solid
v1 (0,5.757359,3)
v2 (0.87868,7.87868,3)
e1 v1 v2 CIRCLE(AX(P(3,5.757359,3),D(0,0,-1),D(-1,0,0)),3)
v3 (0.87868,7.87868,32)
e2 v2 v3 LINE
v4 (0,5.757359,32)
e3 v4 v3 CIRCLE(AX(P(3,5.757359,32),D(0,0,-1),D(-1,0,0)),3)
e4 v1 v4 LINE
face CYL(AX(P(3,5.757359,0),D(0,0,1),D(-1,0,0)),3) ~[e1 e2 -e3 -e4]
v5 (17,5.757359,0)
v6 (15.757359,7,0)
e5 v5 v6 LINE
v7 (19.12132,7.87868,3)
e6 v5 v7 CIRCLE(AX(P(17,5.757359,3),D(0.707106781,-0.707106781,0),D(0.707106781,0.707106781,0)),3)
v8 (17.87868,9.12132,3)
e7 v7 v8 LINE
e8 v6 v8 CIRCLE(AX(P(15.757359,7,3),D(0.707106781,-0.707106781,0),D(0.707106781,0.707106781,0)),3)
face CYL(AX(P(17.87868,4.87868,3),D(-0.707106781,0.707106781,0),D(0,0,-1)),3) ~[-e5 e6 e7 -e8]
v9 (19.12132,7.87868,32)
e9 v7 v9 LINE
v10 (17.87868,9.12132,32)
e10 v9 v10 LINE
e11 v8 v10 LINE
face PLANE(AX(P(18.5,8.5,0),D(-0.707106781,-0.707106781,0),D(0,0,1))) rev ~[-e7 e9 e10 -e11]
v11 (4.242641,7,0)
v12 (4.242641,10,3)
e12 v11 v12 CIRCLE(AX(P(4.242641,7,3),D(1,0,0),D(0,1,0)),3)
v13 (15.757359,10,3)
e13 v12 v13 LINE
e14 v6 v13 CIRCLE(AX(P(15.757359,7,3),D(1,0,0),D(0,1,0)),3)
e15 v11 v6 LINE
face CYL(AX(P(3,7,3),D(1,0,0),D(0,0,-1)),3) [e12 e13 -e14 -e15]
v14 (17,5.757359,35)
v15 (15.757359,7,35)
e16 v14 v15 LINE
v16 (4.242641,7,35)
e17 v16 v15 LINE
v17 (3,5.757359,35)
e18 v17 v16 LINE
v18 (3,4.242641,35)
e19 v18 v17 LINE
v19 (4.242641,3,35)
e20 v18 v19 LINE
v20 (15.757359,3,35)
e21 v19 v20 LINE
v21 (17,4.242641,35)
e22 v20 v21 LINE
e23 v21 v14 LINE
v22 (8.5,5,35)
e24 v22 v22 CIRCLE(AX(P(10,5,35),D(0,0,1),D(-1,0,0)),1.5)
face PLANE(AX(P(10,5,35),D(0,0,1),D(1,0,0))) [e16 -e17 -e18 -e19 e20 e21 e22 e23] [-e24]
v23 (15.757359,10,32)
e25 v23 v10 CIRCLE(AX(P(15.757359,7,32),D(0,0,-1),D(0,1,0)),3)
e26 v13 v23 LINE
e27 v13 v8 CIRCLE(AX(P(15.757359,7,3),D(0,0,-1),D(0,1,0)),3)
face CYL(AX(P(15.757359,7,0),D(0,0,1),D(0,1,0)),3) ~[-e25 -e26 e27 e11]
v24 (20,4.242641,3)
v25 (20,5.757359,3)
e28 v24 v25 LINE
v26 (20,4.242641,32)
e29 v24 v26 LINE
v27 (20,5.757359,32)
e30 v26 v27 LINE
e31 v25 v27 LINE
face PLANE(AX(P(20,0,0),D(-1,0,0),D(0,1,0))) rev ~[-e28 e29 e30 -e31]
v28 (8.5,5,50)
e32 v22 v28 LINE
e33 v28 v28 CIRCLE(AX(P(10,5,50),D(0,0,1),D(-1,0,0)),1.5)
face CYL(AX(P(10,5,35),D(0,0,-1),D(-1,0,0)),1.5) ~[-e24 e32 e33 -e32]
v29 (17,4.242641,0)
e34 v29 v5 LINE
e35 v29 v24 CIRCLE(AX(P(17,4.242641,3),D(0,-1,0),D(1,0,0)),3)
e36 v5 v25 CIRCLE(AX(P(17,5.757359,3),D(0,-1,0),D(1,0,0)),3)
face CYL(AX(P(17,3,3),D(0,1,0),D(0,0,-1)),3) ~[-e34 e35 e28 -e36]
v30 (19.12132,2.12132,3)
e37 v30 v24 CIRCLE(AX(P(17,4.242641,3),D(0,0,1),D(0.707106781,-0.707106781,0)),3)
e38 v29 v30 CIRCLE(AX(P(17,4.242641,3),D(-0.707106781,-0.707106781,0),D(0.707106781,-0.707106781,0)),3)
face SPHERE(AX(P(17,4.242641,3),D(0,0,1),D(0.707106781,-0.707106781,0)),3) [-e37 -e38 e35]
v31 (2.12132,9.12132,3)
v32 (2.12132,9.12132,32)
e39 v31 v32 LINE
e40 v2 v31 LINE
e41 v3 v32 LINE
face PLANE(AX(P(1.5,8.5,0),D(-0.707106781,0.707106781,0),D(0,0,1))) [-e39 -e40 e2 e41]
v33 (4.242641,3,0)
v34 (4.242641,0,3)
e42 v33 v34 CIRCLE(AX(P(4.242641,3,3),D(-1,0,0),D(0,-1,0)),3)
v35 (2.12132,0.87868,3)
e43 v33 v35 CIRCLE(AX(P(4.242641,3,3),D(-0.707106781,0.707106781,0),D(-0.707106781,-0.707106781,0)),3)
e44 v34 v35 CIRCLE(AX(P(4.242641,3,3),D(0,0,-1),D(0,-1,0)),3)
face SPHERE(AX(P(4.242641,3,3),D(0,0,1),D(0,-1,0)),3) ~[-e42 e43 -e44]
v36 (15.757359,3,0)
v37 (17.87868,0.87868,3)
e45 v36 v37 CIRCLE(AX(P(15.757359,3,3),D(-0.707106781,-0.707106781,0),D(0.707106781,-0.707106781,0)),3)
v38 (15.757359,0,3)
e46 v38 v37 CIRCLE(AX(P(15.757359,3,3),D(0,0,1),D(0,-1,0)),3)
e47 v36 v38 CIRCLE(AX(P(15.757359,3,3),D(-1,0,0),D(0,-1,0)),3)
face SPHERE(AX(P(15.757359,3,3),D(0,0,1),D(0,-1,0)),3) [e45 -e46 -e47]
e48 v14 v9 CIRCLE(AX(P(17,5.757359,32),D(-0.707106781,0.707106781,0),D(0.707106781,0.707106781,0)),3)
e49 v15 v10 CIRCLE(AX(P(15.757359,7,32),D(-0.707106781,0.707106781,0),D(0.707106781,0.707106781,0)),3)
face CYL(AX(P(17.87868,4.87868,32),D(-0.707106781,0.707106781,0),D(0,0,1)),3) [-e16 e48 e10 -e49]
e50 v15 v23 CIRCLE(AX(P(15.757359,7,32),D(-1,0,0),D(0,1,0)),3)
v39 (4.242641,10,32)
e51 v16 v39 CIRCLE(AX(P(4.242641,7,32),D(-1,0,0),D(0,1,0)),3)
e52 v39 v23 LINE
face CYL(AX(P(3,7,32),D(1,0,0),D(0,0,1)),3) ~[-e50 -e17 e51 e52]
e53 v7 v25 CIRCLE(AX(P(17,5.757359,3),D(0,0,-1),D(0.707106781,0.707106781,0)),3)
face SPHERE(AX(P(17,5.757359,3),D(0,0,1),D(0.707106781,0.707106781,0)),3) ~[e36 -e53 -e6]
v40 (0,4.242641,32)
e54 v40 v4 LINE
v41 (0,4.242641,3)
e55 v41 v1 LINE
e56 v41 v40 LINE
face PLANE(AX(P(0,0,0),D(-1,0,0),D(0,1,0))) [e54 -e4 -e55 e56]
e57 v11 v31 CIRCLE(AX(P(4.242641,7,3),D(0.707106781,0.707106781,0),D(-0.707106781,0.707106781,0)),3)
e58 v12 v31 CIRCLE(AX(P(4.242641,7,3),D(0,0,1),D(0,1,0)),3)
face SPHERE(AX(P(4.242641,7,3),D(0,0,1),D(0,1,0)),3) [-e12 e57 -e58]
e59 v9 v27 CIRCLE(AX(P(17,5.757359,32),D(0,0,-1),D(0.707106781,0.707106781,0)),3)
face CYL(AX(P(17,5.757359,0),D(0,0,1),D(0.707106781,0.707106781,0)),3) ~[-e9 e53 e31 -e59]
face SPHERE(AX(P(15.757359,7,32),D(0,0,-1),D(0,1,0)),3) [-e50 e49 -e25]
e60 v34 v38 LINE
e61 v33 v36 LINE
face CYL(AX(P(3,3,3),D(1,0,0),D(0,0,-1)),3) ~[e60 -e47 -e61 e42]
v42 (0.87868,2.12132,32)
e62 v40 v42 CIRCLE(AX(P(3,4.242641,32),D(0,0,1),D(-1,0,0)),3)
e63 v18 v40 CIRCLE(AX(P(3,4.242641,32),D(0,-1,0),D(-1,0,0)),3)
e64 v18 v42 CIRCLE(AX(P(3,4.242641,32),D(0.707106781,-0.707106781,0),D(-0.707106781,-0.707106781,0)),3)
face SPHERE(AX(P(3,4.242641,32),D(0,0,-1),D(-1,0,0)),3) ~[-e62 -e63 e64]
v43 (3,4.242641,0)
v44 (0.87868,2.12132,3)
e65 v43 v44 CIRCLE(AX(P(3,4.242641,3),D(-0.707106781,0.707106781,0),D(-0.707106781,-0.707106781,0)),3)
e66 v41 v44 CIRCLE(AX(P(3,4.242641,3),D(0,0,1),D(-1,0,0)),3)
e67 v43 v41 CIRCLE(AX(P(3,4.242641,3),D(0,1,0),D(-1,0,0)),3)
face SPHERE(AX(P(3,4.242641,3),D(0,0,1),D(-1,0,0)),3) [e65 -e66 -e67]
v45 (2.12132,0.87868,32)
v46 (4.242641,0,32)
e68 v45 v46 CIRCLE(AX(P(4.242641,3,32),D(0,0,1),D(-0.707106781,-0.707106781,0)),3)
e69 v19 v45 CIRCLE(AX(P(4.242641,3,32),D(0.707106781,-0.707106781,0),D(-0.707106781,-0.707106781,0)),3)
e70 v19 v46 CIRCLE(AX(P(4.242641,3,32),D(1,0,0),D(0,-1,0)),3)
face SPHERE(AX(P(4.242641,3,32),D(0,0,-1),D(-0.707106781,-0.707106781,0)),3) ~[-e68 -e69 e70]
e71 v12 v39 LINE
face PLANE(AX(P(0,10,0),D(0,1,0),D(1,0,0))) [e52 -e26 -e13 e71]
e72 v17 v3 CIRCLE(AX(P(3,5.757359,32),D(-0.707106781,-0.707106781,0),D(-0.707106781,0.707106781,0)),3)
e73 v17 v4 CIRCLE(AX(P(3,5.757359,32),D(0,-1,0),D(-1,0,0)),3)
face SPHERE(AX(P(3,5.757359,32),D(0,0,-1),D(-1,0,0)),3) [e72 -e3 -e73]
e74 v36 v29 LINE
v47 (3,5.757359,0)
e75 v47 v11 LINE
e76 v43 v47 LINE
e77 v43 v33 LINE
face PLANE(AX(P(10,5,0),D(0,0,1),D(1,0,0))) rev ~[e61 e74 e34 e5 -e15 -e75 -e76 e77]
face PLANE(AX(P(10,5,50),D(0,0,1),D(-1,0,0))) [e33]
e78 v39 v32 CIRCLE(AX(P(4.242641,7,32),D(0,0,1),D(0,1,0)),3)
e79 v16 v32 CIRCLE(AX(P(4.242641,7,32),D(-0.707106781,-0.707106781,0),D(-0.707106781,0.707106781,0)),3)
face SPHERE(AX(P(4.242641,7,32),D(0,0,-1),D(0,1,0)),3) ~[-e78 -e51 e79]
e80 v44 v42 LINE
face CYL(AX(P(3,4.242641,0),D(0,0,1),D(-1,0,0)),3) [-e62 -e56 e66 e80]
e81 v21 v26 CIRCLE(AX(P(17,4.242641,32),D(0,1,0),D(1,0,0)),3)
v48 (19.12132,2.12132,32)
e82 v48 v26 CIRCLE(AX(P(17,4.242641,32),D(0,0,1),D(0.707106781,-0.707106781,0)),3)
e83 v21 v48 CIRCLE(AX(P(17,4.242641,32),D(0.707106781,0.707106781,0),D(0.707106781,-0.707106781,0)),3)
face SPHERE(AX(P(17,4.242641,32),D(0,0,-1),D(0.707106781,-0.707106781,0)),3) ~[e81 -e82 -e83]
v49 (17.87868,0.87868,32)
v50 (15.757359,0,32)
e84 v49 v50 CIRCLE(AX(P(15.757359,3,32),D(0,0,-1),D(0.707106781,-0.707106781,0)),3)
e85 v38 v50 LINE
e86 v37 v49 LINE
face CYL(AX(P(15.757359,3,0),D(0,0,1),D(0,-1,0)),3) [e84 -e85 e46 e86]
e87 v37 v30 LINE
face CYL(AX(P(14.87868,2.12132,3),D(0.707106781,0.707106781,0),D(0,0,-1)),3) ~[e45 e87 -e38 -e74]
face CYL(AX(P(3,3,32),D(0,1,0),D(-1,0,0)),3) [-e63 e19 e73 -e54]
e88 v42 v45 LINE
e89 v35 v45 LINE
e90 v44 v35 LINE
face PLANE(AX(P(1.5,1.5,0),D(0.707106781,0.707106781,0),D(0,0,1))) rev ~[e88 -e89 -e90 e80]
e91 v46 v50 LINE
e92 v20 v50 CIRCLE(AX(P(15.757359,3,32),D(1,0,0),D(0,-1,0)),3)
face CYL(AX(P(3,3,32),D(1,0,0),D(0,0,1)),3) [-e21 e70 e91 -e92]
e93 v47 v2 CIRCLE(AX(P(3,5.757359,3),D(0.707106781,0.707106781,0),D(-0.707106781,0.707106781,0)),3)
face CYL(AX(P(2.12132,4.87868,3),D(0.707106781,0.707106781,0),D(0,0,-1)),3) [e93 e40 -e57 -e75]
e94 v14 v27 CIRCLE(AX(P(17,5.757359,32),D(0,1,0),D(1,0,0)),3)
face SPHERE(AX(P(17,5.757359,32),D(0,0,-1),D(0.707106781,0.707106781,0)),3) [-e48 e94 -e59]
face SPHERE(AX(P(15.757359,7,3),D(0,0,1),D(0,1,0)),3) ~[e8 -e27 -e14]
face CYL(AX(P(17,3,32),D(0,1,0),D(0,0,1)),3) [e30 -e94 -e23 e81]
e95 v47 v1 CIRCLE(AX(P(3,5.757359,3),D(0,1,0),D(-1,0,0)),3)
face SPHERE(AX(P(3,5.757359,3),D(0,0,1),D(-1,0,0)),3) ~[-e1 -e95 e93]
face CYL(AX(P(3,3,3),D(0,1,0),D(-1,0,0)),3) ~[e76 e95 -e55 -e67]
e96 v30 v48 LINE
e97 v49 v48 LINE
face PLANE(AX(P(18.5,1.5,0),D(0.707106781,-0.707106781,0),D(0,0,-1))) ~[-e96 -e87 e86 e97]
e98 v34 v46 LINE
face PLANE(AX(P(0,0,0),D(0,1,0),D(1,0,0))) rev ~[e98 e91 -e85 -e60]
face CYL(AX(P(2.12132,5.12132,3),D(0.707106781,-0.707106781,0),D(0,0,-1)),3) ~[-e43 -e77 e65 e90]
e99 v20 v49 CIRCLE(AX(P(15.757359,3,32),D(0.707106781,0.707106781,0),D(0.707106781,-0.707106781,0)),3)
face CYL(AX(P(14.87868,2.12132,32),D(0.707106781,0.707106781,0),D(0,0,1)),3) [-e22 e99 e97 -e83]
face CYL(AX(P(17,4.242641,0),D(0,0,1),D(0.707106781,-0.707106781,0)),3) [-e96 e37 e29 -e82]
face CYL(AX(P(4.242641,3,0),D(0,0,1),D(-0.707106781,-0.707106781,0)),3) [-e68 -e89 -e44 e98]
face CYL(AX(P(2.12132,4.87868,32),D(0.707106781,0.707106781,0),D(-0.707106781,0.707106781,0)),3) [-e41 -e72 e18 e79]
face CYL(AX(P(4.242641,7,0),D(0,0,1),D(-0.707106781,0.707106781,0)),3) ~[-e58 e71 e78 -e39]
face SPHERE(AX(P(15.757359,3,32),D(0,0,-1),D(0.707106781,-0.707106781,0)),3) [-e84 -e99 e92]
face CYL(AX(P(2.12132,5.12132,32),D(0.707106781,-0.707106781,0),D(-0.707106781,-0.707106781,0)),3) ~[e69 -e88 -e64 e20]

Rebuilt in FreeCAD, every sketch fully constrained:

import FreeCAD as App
import Part
import Sketcher
Q = App.Units.Quantity


def edges_at(feature, points):
    """Names of the edges that pass closest to the given points."""
    edges = feature.Shape.Edges
    near = lambda p: min(range(len(edges)), key=lambda i: edges[i].distToShape(Part.Vertex(*p))[0])
    return sorted({f"Edge{near(p) + 1}" for p in points})

doc = App.newDocument("Part")
body = doc.addObject("PartDesign::Body", "Body")

# Sketch on XY plane
sketch1 = body.newObject("Sketcher::SketchObject", "Sketch")
sketch1.AttachmentSupport = (doc.getObject("XY_Plane"), [""])
sketch1.MapMode = "FlatFace"
sketch1.addGeometry([
    Part.LineSegment(App.Vector(0, 10, 0), App.Vector(0, 0, 0)),
    Part.LineSegment(App.Vector(0, 0, 0), App.Vector(20, 0, 0)),
    Part.LineSegment(App.Vector(20, 0, 0), App.Vector(20, 10, 0)),
    Part.LineSegment(App.Vector(20, 10, 0), App.Vector(0, 10, 0)),
], False)
sketch1.addConstraint([
    Sketcher.Constraint("Coincident", 0, 2, 1, 1),
    Sketcher.Constraint("Coincident", 1, 2, 2, 1),
    Sketcher.Constraint("Coincident", 2, 2, 3, 1),
    Sketcher.Constraint("Coincident", 3, 2, 0, 1),
    Sketcher.Constraint("Vertical", 0),
    Sketcher.Constraint("Horizontal", 1),
    Sketcher.Constraint("Vertical", 2),
    Sketcher.Constraint("Horizontal", 3),
    Sketcher.Constraint("Coincident", 0, 2, -1, 1),
    Sketcher.Constraint("DistanceX", 1, 1, 1, 2, Q("20 mm")),
    Sketcher.Constraint("DistanceY", 0, 2, 0, 1, Q("10 mm")),
])
pad1 = body.newObject("PartDesign::Pad", "Pad")
pad1.Profile = sketch1
pad1.Length = 35
doc.recompute()

chamfer = body.newObject("PartDesign::Chamfer", "Chamfer")
chamfer.Base = (pad1, edges_at(pad1, [
    (0, 0, 17.5),
    (0, 10, 17.5),
    (20, 10, 17.5),
    (20, 0, 17.5),
]))
chamfer.Size = 3
doc.recompute()

fillet = body.newObject("PartDesign::Fillet", "Fillet")
fillet.Base = (chamfer, ["Edge1"])
fillet.UseAllEdges = True
fillet.Radius = 3

# Sketch on XY plane
sketch2 = body.newObject("Sketcher::SketchObject", "Sketch001")
sketch2.AttachmentSupport = (doc.getObject("XY_Plane"), [""])
sketch2.MapMode = "FlatFace"
sketch2.AttachmentOffset = App.Placement(App.Vector(0, 0, 35), App.Rotation())
sketch2.addGeometry(Part.Circle(App.Vector(10, 5, 0), App.Vector(0, 0, 1), 1.5), False)
sketch2.addConstraint([
    Sketcher.Constraint("Diameter", 0, Q("3 mm")),
    Sketcher.Constraint("DistanceX", -1, 1, 0, 3, Q("10 mm")),
    Sketcher.Constraint("DistanceY", -1, 1, 0, 3, Q("5 mm")),
])
pad2 = body.newObject("PartDesign::Pad", "Pad001")
pad2.Profile = sketch2
pad2.Length = 15

doc.recompute()
